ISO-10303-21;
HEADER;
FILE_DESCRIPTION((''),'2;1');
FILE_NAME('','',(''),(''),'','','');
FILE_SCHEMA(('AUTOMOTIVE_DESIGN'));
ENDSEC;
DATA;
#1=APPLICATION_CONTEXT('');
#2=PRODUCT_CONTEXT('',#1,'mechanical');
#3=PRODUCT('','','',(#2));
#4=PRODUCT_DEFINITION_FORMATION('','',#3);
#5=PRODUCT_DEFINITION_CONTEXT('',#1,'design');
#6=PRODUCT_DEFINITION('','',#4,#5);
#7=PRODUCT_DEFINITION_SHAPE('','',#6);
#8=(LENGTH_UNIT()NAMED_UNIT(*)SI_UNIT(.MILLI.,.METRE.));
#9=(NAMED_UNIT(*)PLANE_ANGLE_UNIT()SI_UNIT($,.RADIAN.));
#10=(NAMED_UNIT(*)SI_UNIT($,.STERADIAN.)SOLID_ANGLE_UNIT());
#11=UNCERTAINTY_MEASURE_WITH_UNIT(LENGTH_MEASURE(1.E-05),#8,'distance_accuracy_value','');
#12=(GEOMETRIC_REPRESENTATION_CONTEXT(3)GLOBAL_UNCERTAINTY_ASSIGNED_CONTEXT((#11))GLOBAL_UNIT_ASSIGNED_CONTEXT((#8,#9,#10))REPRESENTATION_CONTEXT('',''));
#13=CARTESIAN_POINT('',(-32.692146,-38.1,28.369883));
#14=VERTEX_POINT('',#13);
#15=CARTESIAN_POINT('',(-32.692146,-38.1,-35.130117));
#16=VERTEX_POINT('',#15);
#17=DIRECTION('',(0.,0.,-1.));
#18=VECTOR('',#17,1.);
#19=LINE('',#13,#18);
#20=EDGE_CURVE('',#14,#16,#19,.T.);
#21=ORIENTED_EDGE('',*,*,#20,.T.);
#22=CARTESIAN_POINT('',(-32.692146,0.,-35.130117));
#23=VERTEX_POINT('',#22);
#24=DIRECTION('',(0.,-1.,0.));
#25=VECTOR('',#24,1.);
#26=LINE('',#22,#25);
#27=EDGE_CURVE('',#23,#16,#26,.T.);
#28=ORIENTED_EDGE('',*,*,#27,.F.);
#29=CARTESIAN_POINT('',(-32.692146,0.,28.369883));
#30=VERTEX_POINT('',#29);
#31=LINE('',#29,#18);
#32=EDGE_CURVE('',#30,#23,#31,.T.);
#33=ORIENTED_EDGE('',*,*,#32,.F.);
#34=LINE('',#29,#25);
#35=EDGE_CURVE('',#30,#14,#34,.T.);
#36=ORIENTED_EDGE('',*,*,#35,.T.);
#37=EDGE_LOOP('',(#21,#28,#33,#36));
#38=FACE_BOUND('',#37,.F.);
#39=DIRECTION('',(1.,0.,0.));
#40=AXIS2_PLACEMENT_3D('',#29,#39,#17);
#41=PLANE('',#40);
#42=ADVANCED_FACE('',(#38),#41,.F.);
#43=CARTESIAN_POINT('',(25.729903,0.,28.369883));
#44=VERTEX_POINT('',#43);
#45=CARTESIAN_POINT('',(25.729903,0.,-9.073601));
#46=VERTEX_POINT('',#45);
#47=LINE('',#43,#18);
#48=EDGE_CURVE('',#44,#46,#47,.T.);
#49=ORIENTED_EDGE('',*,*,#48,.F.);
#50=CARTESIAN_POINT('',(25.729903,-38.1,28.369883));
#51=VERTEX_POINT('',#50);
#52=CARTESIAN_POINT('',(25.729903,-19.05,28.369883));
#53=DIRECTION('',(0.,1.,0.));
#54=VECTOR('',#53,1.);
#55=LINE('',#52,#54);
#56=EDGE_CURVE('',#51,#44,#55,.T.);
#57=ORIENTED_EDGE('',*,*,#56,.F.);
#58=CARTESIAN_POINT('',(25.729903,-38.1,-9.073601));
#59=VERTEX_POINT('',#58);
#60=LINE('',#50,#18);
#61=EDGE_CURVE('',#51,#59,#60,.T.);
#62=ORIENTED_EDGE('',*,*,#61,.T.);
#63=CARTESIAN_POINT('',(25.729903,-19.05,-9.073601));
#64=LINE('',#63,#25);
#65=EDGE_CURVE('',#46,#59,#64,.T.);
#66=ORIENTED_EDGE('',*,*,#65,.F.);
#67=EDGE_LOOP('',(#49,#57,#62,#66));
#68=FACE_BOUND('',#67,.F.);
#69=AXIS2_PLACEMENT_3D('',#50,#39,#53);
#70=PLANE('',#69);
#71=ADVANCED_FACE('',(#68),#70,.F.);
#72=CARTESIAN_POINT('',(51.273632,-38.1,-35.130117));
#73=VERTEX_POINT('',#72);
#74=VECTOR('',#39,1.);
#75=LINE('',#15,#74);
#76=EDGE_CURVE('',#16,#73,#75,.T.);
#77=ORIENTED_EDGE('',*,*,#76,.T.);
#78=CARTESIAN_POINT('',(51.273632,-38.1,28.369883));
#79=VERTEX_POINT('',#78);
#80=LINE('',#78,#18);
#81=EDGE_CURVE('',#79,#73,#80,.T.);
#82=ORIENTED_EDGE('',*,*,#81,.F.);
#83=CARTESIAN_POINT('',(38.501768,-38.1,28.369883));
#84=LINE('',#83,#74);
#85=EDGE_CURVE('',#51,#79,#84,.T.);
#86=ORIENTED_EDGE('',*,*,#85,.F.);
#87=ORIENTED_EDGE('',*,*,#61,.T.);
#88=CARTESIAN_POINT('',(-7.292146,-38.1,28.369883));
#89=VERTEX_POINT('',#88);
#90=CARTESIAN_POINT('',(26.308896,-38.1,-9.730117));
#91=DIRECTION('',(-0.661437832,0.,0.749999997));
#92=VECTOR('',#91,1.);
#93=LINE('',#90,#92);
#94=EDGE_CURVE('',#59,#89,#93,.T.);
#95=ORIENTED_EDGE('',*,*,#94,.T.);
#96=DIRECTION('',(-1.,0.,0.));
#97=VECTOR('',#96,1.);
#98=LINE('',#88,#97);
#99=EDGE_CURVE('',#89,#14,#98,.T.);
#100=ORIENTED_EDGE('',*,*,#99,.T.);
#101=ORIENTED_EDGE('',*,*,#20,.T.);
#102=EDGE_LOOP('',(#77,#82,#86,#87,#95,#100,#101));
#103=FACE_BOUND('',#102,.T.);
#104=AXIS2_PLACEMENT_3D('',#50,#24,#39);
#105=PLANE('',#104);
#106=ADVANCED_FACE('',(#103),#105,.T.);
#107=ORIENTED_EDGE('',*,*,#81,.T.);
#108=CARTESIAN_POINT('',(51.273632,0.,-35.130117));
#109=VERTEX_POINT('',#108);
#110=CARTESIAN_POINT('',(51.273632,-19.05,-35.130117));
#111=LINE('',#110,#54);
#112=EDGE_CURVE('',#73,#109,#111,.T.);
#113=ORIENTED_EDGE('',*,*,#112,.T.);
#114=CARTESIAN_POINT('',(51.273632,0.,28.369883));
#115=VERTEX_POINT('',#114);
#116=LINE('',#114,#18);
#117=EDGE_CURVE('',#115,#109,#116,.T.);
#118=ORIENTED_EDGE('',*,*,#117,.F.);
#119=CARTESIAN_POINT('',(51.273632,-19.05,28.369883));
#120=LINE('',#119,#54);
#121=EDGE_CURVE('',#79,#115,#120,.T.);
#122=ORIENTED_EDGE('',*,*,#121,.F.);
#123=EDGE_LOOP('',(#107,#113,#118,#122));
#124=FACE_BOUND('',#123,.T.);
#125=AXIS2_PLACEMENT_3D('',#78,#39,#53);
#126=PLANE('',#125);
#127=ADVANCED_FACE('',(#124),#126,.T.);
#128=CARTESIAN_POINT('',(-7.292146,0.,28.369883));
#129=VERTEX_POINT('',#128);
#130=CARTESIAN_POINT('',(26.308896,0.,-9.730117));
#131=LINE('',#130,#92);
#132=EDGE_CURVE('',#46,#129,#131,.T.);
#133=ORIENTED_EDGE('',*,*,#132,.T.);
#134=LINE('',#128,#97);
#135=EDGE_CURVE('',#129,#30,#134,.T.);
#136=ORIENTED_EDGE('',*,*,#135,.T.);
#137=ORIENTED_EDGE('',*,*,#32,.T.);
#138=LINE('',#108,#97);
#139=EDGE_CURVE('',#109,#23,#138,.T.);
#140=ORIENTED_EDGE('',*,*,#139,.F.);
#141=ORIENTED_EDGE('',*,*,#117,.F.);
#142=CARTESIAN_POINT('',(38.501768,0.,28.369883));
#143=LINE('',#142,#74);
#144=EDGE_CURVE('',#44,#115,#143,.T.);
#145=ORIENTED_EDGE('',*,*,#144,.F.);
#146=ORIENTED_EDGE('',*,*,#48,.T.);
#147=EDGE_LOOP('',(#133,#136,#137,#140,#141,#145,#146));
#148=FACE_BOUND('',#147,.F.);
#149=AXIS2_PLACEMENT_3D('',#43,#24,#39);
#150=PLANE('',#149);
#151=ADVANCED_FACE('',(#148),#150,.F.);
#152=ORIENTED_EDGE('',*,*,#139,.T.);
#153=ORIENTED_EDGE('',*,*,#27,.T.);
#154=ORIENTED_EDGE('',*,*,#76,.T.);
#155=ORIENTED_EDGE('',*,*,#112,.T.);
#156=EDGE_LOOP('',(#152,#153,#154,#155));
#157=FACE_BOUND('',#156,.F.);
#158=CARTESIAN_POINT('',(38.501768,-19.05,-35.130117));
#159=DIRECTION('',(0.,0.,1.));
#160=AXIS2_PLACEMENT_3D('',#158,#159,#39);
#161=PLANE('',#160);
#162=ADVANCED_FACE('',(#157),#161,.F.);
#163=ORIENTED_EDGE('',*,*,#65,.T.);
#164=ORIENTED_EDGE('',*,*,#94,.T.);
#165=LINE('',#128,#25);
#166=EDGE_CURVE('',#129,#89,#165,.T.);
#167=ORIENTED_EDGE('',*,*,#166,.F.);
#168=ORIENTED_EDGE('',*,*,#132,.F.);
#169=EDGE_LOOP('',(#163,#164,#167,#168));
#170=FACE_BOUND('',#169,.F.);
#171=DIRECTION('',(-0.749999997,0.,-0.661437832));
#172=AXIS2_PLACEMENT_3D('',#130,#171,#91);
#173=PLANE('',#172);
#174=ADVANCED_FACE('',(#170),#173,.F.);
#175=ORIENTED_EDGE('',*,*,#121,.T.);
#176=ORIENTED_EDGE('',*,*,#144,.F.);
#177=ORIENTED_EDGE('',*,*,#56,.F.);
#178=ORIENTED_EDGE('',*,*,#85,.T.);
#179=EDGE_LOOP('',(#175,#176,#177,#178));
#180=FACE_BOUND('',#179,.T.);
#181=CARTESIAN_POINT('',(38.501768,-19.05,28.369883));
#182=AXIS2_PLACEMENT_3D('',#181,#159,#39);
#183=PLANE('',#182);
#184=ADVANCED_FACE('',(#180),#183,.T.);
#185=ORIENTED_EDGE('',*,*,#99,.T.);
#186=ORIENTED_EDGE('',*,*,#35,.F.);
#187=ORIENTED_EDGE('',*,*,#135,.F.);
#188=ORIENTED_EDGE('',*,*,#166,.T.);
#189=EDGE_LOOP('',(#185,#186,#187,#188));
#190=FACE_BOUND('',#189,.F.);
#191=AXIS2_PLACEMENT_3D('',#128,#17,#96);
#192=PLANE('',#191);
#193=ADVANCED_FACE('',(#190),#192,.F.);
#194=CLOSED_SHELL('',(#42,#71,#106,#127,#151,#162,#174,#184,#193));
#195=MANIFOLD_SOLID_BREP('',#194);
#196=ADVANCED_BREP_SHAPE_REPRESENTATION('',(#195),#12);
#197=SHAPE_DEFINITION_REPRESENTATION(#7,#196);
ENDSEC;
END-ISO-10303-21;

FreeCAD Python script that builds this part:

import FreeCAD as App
import Part
import Sketcher
from FreeCAD import Vector
Q = App.Units.Quantity


def add_polygon(sketch, points):
    """Adds a closed chain of lines whose ends are joined by coincident constraints."""
    first, n = sketch.GeometryCount, len(points)
    for a, b in zip(points, points[1:] + points[:1]):
        sketch.addGeometry(Part.LineSegment(App.Vector(*a, 0), App.Vector(*b, 0)), False)
    for i in range(n):
        sketch.addConstraint(Sketcher.Constraint("Coincident", first + i, 2, first + (i + 1) % n, 1))

doc = App.newDocument("Part")
params = doc.addObject("Spreadsheet::Sheet", "Params")
for row, (alias, value) in enumerate([
    ("sketch1_width", "1 in"),
    ("sketch1_length", "2 in"),
    ("sketch1_height", "2.5 in"),
    ("pad1_length", "1.5 in"),
    ("sketch2_height", "1.5 in"),
    ("pad2_length", "2.5 in"),
], start=1):
    params.set(f"A{row}", alias)
    params.set(f"B{row}", "=" + value)
    params.setAlias(f"B{row}", alias)

body = doc.addObject("PartDesign::Body", "Body")

# Sketch on XZ plane
sketch1 = doc.addObject("Sketcher::SketchObject", "Sketch")
body.addObject(sketch1)
sketch1.AttachmentSupport = (doc.XZ_Plane, [""])
sketch1.MapMode = "FlatFace"
add_polygon(sketch1, [(-33, 28), (-33, -35), (26, -35), (26, -10), (-7, 28)])  # lines 0-4
sketch1.addConstraint([
    Sketcher.Constraint("Vertical", 0),
    Sketcher.Constraint("Horizontal", 1),
    Sketcher.Constraint("Vertical", 2),
    Sketcher.Constraint("Horizontal", 4),
    Sketcher.Constraint("Equal", 4, 2),
    Sketcher.Constraint("DistanceX", 4, 2, 4, 1, Q("1 in")),
    Sketcher.Constraint("Distance", 3, Q("2 in")),
    Sketcher.Constraint("DistanceY", 0, 2, 0, 1, Q("2.5 in")),
    Sketcher.Constraint("DistanceX", 0, 2, -1, 1, Q("32.692146 mm")),
    Sketcher.Constraint("DistanceY", 0, 2, -1, 1, Q("35.130117 mm")),
])
sketch1.setExpression("Constraints[10]", "Params.sketch1_width")
sketch1.setExpression("Constraints[11]", "Params.sketch1_length")
sketch1.setExpression("Constraints[12]", "Params.sketch1_height")
pad1 = doc.addObject("PartDesign::Pad", "Pad")
body.addObject(pad1)
pad1.Profile = sketch1
pad1.setExpression("Length", "Params.pad1_length")

# Sketch on XY plane
sketch2 = doc.addObject("Sketcher::SketchObject", "Sketch001")
body.addObject(sketch2)
sketch2.AttachmentSupport = (doc.XY_Plane, [""])
sketch2.MapMode = "FlatFace"
sketch2.AttachmentOffset = App.Placement(Vector(0, 0, 28.369883), App.Rotation())
add_polygon(sketch2, [(26, 0), (26, -38), (51, -38), (51, 0)])  # lines 0-3
sketch2.addConstraint([
    Sketcher.Constraint("Vertical", 0),
    Sketcher.Constraint("Horizontal", 1),
    Sketcher.Constraint("Vertical", 2),
    Sketcher.Constraint("Horizontal", 3),
    Sketcher.Constraint("PointOnObject", 2, 2, -1),
    Sketcher.Constraint("DistanceY", 0, 2, 0, 1, Q("1.5 in")),
    Sketcher.Constraint("DistanceX", 1, 1, 1, 2, Q("25.543729 mm")),
    Sketcher.Constraint("DistanceX", -1, 1, 0, 2, Q("25.729903 mm")),
])
sketch2.setExpression("Constraints[9]", "Params.sketch2_height")
pad2 = doc.addObject("PartDesign::Pad", "Pad001")
body.addObject(pad2)
pad2.Profile = sketch2
pad2.setExpression("Length", "Params.pad2_length")
pad2.Reversed = True

doc.recompute()
